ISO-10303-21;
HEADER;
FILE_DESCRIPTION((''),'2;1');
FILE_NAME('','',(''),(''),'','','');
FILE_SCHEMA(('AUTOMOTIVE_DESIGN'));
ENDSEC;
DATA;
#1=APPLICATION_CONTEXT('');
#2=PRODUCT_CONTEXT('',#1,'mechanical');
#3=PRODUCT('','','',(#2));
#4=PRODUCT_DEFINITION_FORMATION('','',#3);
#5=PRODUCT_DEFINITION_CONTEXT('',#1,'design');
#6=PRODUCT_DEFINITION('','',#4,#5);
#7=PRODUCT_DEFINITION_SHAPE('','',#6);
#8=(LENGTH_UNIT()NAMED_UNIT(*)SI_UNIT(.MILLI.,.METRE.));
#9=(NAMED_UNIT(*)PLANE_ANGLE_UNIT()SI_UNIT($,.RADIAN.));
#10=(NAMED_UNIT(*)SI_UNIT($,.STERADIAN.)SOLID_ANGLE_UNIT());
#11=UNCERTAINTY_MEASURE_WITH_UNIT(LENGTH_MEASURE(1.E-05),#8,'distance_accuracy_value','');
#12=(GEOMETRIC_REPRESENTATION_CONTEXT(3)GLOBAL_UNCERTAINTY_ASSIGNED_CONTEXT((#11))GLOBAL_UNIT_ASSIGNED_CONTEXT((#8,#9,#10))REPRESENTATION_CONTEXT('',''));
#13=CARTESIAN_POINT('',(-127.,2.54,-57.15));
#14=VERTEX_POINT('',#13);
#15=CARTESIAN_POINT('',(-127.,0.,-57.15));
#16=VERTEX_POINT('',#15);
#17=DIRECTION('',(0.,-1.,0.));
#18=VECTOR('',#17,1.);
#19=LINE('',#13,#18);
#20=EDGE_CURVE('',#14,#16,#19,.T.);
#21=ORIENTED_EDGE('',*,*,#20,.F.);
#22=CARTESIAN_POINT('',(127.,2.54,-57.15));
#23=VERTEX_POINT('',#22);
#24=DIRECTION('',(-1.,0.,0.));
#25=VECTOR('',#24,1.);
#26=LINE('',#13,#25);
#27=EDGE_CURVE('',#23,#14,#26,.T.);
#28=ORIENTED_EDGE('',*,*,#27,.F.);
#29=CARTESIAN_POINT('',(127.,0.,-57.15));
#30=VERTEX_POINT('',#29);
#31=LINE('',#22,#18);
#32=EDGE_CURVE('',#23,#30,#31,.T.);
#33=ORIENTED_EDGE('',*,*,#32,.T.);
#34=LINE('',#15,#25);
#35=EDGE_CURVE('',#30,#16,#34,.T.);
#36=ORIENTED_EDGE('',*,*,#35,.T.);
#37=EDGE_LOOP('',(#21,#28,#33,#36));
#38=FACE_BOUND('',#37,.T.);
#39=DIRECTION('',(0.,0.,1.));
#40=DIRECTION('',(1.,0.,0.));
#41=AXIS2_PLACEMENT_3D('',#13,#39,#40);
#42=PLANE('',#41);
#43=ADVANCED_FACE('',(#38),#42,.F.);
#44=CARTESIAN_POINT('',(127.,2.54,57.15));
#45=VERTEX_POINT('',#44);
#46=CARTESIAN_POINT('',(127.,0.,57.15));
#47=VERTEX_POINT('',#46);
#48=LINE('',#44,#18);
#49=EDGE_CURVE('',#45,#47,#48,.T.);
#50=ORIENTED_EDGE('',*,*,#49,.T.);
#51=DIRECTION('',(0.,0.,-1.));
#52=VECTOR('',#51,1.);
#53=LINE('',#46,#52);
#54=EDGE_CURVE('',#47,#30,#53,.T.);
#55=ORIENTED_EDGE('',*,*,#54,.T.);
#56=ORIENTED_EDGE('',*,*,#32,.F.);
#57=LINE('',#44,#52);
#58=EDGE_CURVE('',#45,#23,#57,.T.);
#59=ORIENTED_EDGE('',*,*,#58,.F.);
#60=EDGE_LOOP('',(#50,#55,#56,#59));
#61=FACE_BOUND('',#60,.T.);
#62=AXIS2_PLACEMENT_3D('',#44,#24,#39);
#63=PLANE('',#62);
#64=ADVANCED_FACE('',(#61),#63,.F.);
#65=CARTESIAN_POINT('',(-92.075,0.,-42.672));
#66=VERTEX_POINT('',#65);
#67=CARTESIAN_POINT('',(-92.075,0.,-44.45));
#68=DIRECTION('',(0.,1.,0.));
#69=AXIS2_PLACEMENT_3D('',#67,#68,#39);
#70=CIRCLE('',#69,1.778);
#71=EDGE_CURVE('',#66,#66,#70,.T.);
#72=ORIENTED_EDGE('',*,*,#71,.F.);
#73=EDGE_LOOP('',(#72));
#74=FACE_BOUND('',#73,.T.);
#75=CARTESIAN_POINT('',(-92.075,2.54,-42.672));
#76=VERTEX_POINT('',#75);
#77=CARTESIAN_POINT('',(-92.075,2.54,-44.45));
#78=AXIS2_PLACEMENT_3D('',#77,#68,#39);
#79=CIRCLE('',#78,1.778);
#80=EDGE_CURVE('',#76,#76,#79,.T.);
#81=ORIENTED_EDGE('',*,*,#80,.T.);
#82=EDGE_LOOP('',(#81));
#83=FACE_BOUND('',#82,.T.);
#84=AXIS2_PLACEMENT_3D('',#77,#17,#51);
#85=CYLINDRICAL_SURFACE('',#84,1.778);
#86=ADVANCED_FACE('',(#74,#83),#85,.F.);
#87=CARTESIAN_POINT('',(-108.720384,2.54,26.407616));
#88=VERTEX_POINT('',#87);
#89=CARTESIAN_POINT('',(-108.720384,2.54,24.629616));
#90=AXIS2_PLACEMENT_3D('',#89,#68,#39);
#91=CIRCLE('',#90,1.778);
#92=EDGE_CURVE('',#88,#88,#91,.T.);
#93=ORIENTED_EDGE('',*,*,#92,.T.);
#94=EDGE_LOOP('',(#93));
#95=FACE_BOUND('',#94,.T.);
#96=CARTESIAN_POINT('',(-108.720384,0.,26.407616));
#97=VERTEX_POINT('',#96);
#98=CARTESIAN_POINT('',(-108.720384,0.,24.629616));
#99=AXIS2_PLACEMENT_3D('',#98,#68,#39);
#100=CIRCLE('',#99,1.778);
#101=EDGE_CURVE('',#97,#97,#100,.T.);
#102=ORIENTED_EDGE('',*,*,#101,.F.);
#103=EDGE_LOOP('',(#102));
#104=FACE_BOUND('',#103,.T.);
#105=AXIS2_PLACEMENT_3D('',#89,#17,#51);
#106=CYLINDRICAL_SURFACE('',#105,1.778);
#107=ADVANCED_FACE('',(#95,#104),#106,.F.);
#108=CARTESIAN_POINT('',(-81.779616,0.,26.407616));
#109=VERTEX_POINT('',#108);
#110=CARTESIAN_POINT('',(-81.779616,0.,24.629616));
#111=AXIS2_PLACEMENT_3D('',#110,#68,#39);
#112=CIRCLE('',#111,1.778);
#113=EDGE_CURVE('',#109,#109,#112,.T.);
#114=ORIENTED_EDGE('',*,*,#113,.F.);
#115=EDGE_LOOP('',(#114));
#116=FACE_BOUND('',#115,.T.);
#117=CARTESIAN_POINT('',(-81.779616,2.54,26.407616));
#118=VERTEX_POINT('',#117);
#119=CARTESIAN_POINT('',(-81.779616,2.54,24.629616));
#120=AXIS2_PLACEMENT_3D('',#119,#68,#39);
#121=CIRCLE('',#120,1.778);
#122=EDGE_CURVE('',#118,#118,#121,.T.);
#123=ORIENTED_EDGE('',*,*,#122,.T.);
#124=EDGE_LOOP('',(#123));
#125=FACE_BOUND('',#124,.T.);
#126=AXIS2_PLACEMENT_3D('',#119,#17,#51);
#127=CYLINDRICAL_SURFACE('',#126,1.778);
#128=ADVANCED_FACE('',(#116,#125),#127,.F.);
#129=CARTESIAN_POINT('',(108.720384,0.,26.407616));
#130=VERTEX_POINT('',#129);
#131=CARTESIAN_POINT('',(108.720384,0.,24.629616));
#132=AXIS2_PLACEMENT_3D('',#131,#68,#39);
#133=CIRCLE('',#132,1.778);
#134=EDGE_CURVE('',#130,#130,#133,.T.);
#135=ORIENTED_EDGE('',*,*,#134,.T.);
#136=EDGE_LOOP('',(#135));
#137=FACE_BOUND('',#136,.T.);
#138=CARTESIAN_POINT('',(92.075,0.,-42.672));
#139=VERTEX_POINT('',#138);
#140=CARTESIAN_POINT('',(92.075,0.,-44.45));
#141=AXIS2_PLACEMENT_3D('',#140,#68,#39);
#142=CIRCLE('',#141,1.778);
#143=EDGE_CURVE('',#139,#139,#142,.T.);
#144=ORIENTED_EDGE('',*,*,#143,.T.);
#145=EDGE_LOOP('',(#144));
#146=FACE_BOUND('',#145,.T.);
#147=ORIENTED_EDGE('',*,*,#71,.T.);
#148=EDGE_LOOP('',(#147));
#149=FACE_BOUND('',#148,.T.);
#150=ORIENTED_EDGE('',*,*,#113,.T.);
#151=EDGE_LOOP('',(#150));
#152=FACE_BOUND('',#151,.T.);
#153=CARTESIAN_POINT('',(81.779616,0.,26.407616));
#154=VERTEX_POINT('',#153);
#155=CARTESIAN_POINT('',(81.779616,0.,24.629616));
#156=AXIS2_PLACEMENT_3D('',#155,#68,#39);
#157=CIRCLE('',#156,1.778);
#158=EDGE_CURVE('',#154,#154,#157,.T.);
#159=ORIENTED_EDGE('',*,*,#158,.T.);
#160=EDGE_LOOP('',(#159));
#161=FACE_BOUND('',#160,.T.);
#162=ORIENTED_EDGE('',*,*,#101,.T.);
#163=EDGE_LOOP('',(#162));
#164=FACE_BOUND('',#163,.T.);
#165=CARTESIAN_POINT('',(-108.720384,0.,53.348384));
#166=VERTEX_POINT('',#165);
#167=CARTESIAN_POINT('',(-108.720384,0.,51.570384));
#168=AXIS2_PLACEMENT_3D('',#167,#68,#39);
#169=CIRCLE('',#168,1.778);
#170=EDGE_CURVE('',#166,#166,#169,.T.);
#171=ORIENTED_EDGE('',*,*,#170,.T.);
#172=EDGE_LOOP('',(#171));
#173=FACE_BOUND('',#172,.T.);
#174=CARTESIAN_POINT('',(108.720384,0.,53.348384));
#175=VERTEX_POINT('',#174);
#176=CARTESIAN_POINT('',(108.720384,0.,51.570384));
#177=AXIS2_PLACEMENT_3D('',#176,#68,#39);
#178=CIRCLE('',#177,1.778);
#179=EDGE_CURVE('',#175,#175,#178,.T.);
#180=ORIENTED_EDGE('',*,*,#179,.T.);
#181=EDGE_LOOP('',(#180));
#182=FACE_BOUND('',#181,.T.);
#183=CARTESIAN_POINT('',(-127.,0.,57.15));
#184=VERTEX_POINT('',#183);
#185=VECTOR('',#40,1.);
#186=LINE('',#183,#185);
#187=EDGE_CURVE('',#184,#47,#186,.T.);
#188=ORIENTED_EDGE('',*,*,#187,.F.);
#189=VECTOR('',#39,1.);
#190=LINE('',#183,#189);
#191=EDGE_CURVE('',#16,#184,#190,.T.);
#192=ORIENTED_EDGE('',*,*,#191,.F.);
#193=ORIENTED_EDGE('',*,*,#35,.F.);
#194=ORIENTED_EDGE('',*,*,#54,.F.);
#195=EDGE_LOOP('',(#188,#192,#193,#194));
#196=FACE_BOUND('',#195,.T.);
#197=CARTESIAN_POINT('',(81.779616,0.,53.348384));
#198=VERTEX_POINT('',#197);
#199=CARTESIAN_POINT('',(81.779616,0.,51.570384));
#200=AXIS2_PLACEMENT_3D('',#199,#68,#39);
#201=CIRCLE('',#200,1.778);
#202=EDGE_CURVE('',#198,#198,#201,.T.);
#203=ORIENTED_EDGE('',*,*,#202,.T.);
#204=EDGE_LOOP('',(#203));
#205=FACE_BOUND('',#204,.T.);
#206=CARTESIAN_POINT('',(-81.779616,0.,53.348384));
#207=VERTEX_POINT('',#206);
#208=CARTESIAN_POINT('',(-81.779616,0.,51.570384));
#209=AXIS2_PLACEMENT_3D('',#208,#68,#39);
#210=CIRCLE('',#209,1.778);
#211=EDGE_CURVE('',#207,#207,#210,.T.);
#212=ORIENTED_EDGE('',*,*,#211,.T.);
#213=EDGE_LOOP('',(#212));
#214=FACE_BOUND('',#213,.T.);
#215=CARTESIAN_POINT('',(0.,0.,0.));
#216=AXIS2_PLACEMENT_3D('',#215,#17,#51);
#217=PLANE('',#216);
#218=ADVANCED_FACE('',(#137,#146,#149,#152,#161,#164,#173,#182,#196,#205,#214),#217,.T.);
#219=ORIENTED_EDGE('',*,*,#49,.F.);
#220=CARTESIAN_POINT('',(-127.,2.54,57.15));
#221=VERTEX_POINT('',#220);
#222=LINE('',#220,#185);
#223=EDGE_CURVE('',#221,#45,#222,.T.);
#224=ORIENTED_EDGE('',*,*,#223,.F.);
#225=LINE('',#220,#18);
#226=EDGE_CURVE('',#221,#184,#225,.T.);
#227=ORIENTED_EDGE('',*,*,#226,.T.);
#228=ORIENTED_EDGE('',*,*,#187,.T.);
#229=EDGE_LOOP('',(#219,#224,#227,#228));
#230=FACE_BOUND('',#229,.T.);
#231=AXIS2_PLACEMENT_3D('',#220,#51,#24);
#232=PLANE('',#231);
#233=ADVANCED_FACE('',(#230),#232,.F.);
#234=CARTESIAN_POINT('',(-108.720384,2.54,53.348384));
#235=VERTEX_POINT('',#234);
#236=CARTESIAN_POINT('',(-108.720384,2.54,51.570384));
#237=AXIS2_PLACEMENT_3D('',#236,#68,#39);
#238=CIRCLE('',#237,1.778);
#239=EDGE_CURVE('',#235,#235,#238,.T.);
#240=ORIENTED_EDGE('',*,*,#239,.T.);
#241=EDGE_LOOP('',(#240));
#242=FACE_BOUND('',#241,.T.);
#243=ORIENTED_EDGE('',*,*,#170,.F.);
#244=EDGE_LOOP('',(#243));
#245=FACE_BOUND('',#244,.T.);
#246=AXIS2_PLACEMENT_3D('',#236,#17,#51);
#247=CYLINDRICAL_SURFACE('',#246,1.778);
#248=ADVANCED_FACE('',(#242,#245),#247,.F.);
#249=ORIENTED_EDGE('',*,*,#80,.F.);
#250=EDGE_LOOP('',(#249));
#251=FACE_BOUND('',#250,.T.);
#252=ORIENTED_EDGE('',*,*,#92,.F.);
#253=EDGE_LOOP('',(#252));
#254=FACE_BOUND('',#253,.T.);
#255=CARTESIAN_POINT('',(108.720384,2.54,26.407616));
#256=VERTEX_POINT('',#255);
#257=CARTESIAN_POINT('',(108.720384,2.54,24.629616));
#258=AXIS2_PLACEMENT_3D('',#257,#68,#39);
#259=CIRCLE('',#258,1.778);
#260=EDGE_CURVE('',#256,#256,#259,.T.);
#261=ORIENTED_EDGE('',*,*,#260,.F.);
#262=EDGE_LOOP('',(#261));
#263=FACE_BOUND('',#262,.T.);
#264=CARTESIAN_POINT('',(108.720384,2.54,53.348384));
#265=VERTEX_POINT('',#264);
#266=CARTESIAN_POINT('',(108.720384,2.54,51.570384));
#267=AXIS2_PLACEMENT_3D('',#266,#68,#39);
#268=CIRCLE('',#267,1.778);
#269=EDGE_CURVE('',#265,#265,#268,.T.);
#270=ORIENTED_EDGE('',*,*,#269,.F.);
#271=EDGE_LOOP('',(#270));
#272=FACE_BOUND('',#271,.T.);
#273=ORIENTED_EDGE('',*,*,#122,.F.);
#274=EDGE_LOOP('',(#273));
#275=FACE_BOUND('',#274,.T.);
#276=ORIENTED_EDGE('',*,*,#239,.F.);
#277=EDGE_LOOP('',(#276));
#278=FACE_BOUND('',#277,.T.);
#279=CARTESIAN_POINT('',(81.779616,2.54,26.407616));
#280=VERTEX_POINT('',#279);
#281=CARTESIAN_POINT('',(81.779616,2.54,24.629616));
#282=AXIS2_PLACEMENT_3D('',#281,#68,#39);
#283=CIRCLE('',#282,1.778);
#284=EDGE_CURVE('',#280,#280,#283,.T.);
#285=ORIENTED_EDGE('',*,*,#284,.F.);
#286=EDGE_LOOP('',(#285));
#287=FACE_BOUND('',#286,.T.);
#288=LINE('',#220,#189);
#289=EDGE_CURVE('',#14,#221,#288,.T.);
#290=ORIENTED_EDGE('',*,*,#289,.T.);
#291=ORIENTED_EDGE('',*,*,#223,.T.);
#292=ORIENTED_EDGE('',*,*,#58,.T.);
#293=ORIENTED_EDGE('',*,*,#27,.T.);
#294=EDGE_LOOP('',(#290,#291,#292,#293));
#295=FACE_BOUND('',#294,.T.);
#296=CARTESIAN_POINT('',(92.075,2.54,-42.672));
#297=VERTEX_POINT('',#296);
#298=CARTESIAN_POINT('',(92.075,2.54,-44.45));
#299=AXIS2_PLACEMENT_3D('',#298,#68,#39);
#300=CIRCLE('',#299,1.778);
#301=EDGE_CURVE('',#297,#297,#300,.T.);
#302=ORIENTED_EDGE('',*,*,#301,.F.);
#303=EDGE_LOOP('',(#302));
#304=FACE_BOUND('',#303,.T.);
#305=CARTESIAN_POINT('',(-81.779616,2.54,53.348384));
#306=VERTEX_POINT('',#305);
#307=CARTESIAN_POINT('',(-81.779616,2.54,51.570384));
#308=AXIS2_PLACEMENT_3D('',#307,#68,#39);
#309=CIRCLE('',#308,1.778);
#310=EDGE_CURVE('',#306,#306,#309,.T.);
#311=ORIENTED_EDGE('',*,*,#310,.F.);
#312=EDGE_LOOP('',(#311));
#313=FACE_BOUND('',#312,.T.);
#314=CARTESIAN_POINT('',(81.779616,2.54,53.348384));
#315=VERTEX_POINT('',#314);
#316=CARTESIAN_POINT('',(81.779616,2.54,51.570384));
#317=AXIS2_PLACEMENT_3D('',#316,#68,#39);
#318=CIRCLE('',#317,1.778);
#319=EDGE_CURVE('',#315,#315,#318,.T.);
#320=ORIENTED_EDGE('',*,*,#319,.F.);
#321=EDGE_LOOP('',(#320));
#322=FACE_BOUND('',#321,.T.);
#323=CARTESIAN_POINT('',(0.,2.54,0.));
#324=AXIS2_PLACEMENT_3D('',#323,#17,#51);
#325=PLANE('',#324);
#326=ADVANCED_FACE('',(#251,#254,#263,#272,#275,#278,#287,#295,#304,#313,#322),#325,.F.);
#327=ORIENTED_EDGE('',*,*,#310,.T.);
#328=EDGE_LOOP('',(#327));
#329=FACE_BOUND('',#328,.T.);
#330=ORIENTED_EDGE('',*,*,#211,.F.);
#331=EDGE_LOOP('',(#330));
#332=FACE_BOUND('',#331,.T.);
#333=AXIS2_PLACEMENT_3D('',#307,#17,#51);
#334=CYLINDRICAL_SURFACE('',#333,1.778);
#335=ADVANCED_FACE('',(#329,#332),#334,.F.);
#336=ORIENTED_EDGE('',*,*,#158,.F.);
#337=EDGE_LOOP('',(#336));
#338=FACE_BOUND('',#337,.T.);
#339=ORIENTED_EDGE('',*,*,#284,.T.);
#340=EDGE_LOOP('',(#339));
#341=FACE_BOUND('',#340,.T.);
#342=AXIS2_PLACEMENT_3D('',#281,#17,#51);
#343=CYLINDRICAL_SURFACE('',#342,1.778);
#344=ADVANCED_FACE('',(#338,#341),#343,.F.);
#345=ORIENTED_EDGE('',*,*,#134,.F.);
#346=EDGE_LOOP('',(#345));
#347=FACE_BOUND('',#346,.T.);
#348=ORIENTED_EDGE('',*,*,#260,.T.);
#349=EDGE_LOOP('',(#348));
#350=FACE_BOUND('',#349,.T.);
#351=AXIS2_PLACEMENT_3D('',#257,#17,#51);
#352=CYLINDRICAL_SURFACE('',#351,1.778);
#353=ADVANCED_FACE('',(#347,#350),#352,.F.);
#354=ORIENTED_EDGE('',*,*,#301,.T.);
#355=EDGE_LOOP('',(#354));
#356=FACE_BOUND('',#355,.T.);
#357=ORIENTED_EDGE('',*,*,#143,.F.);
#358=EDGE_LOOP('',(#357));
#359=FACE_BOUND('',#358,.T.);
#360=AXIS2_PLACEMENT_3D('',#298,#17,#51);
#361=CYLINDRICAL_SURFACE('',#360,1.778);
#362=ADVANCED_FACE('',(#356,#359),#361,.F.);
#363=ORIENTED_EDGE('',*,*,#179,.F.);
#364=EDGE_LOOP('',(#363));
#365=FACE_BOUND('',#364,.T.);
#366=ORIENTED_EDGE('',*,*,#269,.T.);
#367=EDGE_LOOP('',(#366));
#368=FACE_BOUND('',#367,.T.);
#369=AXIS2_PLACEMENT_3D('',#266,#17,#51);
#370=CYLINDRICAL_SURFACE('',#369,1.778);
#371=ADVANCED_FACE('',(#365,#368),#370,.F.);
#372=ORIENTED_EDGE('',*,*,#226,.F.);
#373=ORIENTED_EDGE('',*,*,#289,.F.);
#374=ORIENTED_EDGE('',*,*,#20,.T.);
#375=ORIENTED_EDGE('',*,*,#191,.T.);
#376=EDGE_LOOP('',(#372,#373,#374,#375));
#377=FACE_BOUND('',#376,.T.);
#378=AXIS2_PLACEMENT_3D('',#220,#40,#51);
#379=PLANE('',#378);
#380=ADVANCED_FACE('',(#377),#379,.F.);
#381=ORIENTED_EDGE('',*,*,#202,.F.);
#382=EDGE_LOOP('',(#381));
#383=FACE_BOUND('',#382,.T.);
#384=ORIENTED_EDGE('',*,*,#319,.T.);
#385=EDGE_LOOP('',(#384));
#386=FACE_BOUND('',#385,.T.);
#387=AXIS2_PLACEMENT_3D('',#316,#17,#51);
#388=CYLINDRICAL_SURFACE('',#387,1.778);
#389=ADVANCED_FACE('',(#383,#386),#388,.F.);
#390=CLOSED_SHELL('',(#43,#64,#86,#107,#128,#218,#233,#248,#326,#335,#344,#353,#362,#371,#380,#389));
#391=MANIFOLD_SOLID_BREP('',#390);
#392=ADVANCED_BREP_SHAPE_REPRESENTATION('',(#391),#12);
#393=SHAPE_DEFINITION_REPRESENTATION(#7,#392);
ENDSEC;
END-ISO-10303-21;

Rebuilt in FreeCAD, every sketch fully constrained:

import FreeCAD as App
import Part
import Sketcher
Q = App.Units.Quantity

doc = App.newDocument("Part")
body = doc.addObject("PartDesign::Body", "Body")

# Sketch on XZ plane
sketch1 = body.newObject("Sketcher::SketchObject", "Sketch")
sketch1.AttachmentSupport = (doc.getObject("XZ_Plane"), [""])
sketch1.MapMode = "FlatFace"
sketch1.addGeometry([
    Part.LineSegment(App.Vector(-127, -57.15, 0), App.Vector(-127, 57.15, 0)),  # 0
    Part.LineSegment(App.Vector(-127, 57.15, 0), App.Vector(127, 57.15, 0)),  # 1
    Part.LineSegment(App.Vector(127, 57.15, 0), App.Vector(127, -57.15, 0)),  # 2
    Part.LineSegment(App.Vector(127, -57.15, 0), App.Vector(-127, -57.15, 0)),  # 3
    Part.Circle(App.Vector(-108.720384, 51.570384, 0), App.Vector(0, 0, 1), 1.778),  # 4
    Part.Circle(App.Vector(-81.779616, 51.570384, 0), App.Vector(0, 0, 1), 1.778),  # 5
    Part.Circle(App.Vector(-108.720384, 24.629616, 0), App.Vector(0, 0, 1), 1.778),  # 6
    Part.Circle(App.Vector(-81.779616, 24.629616, 0), App.Vector(0, 0, 1), 1.778),  # 7
    Part.Circle(App.Vector(81.779616, 51.570384, 0), App.Vector(0, 0, 1), 1.778),  # 8
    Part.Circle(App.Vector(108.720384, 51.570384, 0), App.Vector(0, 0, 1), 1.778),  # 9
    Part.Circle(App.Vector(81.779616, 24.629616, 0), App.Vector(0, 0, 1), 1.778),  # 10
    Part.Circle(App.Vector(108.720384, 24.629616, 0), App.Vector(0, 0, 1), 1.778),  # 11
    Part.Circle(App.Vector(-92.075, -44.45, 0), App.Vector(0, 0, 1), 1.778),  # 12
    Part.Circle(App.Vector(92.075, -44.45, 0), App.Vector(0, 0, 1), 1.778),  # 13
], False)
sketch1.addConstraint([
    Sketcher.Constraint("Coincident", 0, 2, 1, 1),
    Sketcher.Constraint("Coincident", 1, 2, 2, 1),
    Sketcher.Constraint("Coincident", 2, 2, 3, 1),
    Sketcher.Constraint("Coincident", 3, 2, 0, 1),
    Sketcher.Constraint("Vertical", 0),
    Sketcher.Constraint("Horizontal", 1),
    Sketcher.Constraint("Vertical", 2),
    Sketcher.Constraint("Horizontal", 3),
    Sketcher.Constraint("Equal", 4, 5),
    Sketcher.Constraint("Equal", 5, 6),
    Sketcher.Constraint("Equal", 6, 7),
    Sketcher.Constraint("Equal", 7, 8),
    Sketcher.Constraint("Equal", 8, 9),
    Sketcher.Constraint("Equal", 9, 10),
    Sketcher.Constraint("Equal", 10, 11),
    Sketcher.Constraint("Equal", 11, 12),
    Sketcher.Constraint("Equal", 12, 13),
    Sketcher.Constraint("Symmetric", 0, 2, 2, 2, -1, 1),
    Sketcher.Constraint("Symmetric", 5, 3, 8, 3, -2),
    Sketcher.Constraint("Symmetric", 4, 3, 9, 3, -2),
    Sketcher.Constraint("Symmetric", 7, 3, 10, 3, -2),
    Sketcher.Constraint("Symmetric", 6, 3, 11, 3, -2),
    Sketcher.Constraint("Symmetric", 12, 3, 13, 3, -2),
    Sketcher.Constraint("Horizontal", 4, 3, 5, 3),
    Sketcher.Constraint("Horizontal", 6, 3, 7, 3),
    Sketcher.Constraint("Vertical", 4, 3, 6, 3),
    Sketcher.Constraint("Vertical", 5, 3, 7, 3),
    Sketcher.Constraint("Diameter", 4, Q("0.14 in")),
    Sketcher.Constraint("DistanceX", 1, 1, 1, 2, Q("10 in")),
    Sketcher.Constraint("DistanceY", 0, 1, 0, 2, Q("4.5 in")),
    Sketcher.Constraint("DistanceY", 12, 3, 0, 2, Q("4 in")),
    Sketcher.Constraint("DistanceX", 4, 3, 8, 3, Q("7.5 in")),
    Sketcher.Constraint("DistanceX", 12, 3, 13, 3, Q("7.25 in")),
    Sketcher.Constraint("DistanceX", 4, 3, 5, 3, 26.940768),
    Sketcher.Constraint("DistanceY", 6, 3, 4, 3, 26.940768),
    Sketcher.Constraint("DistanceY", -1, 1, 4, 3, 51.570384),
])
pad1 = body.newObject("PartDesign::Pad", "Pad")
pad1.Profile = sketch1
pad1.Length = Q("0.1 in")
pad1.Reversed = True

doc.recompute()
